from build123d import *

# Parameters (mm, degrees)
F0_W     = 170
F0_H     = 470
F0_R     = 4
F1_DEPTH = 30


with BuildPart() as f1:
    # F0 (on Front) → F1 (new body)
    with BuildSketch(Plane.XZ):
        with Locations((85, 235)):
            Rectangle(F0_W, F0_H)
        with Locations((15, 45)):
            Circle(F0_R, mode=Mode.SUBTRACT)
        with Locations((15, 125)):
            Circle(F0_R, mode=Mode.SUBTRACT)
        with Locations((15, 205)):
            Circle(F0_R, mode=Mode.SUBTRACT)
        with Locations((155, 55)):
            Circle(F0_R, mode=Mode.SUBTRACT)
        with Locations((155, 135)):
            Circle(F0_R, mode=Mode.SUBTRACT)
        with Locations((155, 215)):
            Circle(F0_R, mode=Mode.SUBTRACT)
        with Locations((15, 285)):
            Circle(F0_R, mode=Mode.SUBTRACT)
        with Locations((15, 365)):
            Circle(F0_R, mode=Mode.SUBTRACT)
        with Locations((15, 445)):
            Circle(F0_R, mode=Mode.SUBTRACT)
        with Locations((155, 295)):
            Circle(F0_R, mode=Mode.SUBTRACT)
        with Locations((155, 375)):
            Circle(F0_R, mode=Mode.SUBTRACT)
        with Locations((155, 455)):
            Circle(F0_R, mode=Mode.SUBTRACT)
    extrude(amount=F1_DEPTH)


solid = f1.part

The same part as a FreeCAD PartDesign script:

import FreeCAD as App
import Part
import Sketcher
from FreeCAD import Vector

doc = App.newDocument("Part")
body = doc.addObject("PartDesign::Body", "Body")

sketch1 = doc.addObject("Sketcher::SketchObject", "Sketch")
body.addObject(sketch1)
sketch1.AttachmentSupport = (doc.XZ_Plane, [""])
sketch1.MapMode = "FlatFace"
sketch1.addGeometry([
    Part.LineSegment(Vector(0, 470, 0), Vector(0, 0, 0)),
    Part.LineSegment(Vector(0, 0, 0), Vector(170, 0, 0)),
    Part.LineSegment(Vector(170, 0, 0), Vector(170, 470, 0)),
    Part.LineSegment(Vector(170, 470, 0), Vector(0, 470, 0)),
    Part.Circle(Vector(15, 45, 0), Vector(0, 0, 1), 4),
    Part.Circle(Vector(15, 125, 0), Vector(0, 0, 1), 4),
    Part.Circle(Vector(15, 205, 0), Vector(0, 0, 1), 4),
    Part.Circle(Vector(155, 55, 0), Vector(0, 0, 1), 4),
    Part.Circle(Vector(155, 135, 0), Vector(0, 0, 1), 4),
    Part.Circle(Vector(155, 215, 0), Vector(0, 0, 1), 4),
    Part.Circle(Vector(15, 285, 0), Vector(0, 0, 1), 4),
    Part.Circle(Vector(15, 365, 0), Vector(0, 0, 1), 4),
    Part.Circle(Vector(15, 445, 0), Vector(0, 0, 1), 4),
    Part.Circle(Vector(155, 295, 0), Vector(0, 0, 1), 4),
    Part.Circle(Vector(155, 375, 0), Vector(0, 0, 1), 4),
    Part.Circle(Vector(155, 455, 0), Vector(0, 0, 1), 4),
], False)
sketch1.addConstraint([
    Sketcher.Constraint("Coincident", 0, 2, 1, 1),
    Sketcher.Constraint("Coincident", 1, 2, 2, 1),
    Sketcher.Constraint("Coincident", 2, 2, 3, 1),
    Sketcher.Constraint("Coincident", 3, 2, 0, 1),
    Sketcher.Constraint("Vertical", 0),
    Sketcher.Constraint("Horizontal", 1),
    Sketcher.Constraint("Vertical", 2),
    Sketcher.Constraint("Horizontal", 3),
    Sketcher.Constraint("Coincident", 0, 2, -1, 1),
    Sketcher.Constraint("Equal", 4, 5),
    Sketcher.Constraint("Equal", 5, 6),
    Sketcher.Constraint("Equal", 6, 7),
    Sketcher.Constraint("Equal", 7, 8),
    Sketcher.Constraint("Equal", 8, 9),
    Sketcher.Constraint("Equal", 9, 10),
    Sketcher.Constraint("Equal", 10, 11),
    Sketcher.Constraint("Equal", 11, 12),
    Sketcher.Constraint("Equal", 12, 13),
    Sketcher.Constraint("Equal", 13, 14),
    Sketcher.Constraint("Equal", 14, 15),
    Sketcher.Constraint("Vertical", 4, 3, 5, 3),
    Sketcher.Constraint("Vertical", 5, 3, 6, 3),
    Sketcher.Constraint("Vertical", 7, 3, 8, 3),
    Sketcher.Constraint("Vertical", 8, 3, 9, 3),
    Sketcher.Constraint("Vertical", 6, 3, 10, 3),
    Sketcher.Constraint("Vertical", 10, 3, 11, 3),
    Sketcher.Constraint("Vertical", 11, 3, 12, 3),
    Sketcher.Constraint("Vertical", 9, 3, 13, 3),
    Sketcher.Constraint("Vertical", 13, 3, 14, 3),
    Sketcher.Constraint("Vertical", 14, 3, 15, 3),
    Sketcher.Constraint("Diameter", 4, 8.0),
    Sketcher.Constraint("DistanceX", 1, 1, 1, 2, 170.0),
    Sketcher.Constraint("DistanceY", 0, 2, 0, 1, 470.0),
    Sketcher.Constraint("DistanceX", -1, 1, 4, 3, 15.0),
    Sketcher.Constraint("DistanceY", -1, 1, 4, 3, 45.0),
    Sketcher.Constraint("DistanceY", -1, 1, 5, 3, 125.0),
    Sketcher.Constraint("DistanceY", -1, 1, 6, 3, 205.0),
    Sketcher.Constraint("DistanceX", -1, 1, 7, 3, 155.0),
    Sketcher.Constraint("DistanceY", -1, 1, 7, 3, 55.0),
    Sketcher.Constraint("DistanceY", -1, 1, 8, 3, 135.0),
    Sketcher.Constraint("DistanceY", -1, 1, 9, 3, 215.0),
    Sketcher.Constraint("DistanceY", -1, 1, 10, 3, 285.0),
    Sketcher.Constraint("DistanceY", -1, 1, 11, 3, 365.0),
    Sketcher.Constraint("DistanceY", -1, 1, 12, 3, 445.0),
    Sketcher.Constraint("DistanceY", -1, 1, 13, 3, 295.0),
    Sketcher.Constraint("DistanceY", -1, 1, 14, 3, 375.0),
    Sketcher.Constraint("DistanceY", -1, 1, 15, 3, 455.0),
])
pad1 = doc.addObject("PartDesign::Pad", "Pad")
body.addObject(pad1)
pad1.Profile = sketch1
pad1.Length = 30

doc.recompute()
